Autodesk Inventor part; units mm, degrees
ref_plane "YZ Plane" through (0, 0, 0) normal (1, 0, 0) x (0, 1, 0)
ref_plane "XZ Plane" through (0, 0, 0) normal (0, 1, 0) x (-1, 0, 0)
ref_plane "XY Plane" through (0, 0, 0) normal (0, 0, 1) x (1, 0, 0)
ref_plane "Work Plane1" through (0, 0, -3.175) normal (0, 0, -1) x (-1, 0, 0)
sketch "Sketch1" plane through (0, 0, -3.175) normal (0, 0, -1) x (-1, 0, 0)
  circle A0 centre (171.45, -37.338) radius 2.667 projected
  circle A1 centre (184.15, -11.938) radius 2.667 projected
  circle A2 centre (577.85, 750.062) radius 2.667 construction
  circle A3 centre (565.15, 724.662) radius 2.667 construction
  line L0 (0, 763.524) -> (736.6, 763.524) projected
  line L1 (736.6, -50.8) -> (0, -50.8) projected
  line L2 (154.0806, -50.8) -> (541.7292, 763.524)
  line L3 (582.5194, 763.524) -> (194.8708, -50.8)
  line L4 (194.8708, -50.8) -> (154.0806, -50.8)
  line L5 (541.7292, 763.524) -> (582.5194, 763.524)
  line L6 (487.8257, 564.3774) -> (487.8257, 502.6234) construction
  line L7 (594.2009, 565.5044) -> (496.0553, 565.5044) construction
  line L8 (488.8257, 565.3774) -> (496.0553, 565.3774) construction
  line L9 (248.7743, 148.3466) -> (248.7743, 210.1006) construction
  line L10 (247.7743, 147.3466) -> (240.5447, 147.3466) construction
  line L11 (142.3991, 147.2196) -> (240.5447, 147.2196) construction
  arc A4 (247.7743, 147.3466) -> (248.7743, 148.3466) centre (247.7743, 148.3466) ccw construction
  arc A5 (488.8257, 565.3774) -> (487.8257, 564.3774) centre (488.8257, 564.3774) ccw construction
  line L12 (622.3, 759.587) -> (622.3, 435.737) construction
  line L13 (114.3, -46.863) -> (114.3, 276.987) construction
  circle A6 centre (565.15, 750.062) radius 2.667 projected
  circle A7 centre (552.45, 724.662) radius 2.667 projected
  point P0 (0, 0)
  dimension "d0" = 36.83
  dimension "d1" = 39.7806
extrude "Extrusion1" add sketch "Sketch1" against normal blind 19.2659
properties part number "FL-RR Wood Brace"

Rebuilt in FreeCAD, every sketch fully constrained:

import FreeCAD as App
import Part
import Sketcher

V = App.Vector
Q = App.Units.Quantity

doc = App.newDocument("Part")
body = doc.addObject("PartDesign::Body", "Body")

# Sketch on XY plane
sketch1 = doc.addObject("Sketcher::SketchObject", "Sketch")
body.addObject(sketch1)
sketch1.AttachmentSupport = (doc.XY_Plane, [""])
sketch1.MapMode = "FlatFace"
sketch1.AttachmentOffset = App.Placement(V(0, 0, -0.125 * 25.4), App.Rotation())
sketch1.addGeometry([
    Part.LineSegment(V(-582.5, 763.5, 0), V(-541.7, 763.5, 0)),  # 0
    Part.LineSegment(V(-541.7, 763.5, 0), V(-154.1, -50.8, 0)),  # 1
    Part.LineSegment(V(-154.1, -50.8, 0), V(-194.9, -50.8, 0)),  # 2
    Part.LineSegment(V(-194.9, -50.8, 0), V(-582.5, 763.5, 0)),  # 3
    Part.Circle(V(-171.4, -37.3, 0), V(0, 0, 1), 2.7),  # 4
    Part.Circle(V(-184.2, -11.9, 0), V(0, 0, 1), 2.7),  # 5
    Part.Circle(V(-552.5, 724.7, 0), V(0, 0, 1), 2.7),  # 6
    Part.Circle(V(-565.1, 750.1, 0), V(0, 0, 1), 2.7),  # 7
], False)
sketch1.addConstraint([
    Sketcher.Constraint("Coincident", 0, 2, 1, 1),
    Sketcher.Constraint("Coincident", 1, 2, 2, 1),
    Sketcher.Constraint("Coincident", 2, 2, 3, 1),
    Sketcher.Constraint("Coincident", 3, 2, 0, 1),
    Sketcher.Constraint("Horizontal", 0),
    Sketcher.Constraint("Horizontal", 2),
    Sketcher.Constraint("Equal", 4, 5),
    Sketcher.Constraint("Equal", 5, 6),
    Sketcher.Constraint("Equal", 6, 7),
    Sketcher.Constraint("Parallel", 1, 3),
    Sketcher.Constraint("Diameter", 4, Q("0.21 in")),
    Sketcher.Constraint("DistanceY", 1, 2, -1, 1, Q("2 in")),
    Sketcher.Constraint("DistanceY", 4, 3, 5, 3, Q("1 in")),
    Sketcher.Constraint("DistanceY", 5, 3, 6, 3, Q("29 in")),
    Sketcher.Constraint("DistanceX", 6, 3, 4, 3, Q("15 in")),
    Sketcher.Constraint("DistanceY", 6, 3, 7, 3, Q("1 in")),
    Sketcher.Constraint("DistanceX", 7, 3, 5, 3, Q("15 in")),
    Sketcher.Constraint("DistanceX", 5, 3, 4, 3, Q("0.5 in")),
    Sketcher.Constraint("DistanceX", 4, 3, -1, 1, Q("6.75 in")),
    Sketcher.Constraint("DistanceY", 4, 3, -1, 1, Q("1.47 in")),
    Sketcher.Constraint("DistanceY", -1, 1, 0, 2, Q("30.06 in")),
    Sketcher.Constraint("DistanceX", 0, 1, 0, 2, Q("40.7902 mm")),
    Sketcher.Constraint("Distance", 1, Q("901.8841 mm")),
    Sketcher.Constraint("DistanceX", 0, 2, -1, 1, Q("541.7292 mm")),
])
pad1 = doc.addObject("PartDesign::Pad", "Pad")
body.addObject(pad1)
pad1.Profile = sketch1
pad1.Length = Q("0.7585 in")

doc.recompute()
